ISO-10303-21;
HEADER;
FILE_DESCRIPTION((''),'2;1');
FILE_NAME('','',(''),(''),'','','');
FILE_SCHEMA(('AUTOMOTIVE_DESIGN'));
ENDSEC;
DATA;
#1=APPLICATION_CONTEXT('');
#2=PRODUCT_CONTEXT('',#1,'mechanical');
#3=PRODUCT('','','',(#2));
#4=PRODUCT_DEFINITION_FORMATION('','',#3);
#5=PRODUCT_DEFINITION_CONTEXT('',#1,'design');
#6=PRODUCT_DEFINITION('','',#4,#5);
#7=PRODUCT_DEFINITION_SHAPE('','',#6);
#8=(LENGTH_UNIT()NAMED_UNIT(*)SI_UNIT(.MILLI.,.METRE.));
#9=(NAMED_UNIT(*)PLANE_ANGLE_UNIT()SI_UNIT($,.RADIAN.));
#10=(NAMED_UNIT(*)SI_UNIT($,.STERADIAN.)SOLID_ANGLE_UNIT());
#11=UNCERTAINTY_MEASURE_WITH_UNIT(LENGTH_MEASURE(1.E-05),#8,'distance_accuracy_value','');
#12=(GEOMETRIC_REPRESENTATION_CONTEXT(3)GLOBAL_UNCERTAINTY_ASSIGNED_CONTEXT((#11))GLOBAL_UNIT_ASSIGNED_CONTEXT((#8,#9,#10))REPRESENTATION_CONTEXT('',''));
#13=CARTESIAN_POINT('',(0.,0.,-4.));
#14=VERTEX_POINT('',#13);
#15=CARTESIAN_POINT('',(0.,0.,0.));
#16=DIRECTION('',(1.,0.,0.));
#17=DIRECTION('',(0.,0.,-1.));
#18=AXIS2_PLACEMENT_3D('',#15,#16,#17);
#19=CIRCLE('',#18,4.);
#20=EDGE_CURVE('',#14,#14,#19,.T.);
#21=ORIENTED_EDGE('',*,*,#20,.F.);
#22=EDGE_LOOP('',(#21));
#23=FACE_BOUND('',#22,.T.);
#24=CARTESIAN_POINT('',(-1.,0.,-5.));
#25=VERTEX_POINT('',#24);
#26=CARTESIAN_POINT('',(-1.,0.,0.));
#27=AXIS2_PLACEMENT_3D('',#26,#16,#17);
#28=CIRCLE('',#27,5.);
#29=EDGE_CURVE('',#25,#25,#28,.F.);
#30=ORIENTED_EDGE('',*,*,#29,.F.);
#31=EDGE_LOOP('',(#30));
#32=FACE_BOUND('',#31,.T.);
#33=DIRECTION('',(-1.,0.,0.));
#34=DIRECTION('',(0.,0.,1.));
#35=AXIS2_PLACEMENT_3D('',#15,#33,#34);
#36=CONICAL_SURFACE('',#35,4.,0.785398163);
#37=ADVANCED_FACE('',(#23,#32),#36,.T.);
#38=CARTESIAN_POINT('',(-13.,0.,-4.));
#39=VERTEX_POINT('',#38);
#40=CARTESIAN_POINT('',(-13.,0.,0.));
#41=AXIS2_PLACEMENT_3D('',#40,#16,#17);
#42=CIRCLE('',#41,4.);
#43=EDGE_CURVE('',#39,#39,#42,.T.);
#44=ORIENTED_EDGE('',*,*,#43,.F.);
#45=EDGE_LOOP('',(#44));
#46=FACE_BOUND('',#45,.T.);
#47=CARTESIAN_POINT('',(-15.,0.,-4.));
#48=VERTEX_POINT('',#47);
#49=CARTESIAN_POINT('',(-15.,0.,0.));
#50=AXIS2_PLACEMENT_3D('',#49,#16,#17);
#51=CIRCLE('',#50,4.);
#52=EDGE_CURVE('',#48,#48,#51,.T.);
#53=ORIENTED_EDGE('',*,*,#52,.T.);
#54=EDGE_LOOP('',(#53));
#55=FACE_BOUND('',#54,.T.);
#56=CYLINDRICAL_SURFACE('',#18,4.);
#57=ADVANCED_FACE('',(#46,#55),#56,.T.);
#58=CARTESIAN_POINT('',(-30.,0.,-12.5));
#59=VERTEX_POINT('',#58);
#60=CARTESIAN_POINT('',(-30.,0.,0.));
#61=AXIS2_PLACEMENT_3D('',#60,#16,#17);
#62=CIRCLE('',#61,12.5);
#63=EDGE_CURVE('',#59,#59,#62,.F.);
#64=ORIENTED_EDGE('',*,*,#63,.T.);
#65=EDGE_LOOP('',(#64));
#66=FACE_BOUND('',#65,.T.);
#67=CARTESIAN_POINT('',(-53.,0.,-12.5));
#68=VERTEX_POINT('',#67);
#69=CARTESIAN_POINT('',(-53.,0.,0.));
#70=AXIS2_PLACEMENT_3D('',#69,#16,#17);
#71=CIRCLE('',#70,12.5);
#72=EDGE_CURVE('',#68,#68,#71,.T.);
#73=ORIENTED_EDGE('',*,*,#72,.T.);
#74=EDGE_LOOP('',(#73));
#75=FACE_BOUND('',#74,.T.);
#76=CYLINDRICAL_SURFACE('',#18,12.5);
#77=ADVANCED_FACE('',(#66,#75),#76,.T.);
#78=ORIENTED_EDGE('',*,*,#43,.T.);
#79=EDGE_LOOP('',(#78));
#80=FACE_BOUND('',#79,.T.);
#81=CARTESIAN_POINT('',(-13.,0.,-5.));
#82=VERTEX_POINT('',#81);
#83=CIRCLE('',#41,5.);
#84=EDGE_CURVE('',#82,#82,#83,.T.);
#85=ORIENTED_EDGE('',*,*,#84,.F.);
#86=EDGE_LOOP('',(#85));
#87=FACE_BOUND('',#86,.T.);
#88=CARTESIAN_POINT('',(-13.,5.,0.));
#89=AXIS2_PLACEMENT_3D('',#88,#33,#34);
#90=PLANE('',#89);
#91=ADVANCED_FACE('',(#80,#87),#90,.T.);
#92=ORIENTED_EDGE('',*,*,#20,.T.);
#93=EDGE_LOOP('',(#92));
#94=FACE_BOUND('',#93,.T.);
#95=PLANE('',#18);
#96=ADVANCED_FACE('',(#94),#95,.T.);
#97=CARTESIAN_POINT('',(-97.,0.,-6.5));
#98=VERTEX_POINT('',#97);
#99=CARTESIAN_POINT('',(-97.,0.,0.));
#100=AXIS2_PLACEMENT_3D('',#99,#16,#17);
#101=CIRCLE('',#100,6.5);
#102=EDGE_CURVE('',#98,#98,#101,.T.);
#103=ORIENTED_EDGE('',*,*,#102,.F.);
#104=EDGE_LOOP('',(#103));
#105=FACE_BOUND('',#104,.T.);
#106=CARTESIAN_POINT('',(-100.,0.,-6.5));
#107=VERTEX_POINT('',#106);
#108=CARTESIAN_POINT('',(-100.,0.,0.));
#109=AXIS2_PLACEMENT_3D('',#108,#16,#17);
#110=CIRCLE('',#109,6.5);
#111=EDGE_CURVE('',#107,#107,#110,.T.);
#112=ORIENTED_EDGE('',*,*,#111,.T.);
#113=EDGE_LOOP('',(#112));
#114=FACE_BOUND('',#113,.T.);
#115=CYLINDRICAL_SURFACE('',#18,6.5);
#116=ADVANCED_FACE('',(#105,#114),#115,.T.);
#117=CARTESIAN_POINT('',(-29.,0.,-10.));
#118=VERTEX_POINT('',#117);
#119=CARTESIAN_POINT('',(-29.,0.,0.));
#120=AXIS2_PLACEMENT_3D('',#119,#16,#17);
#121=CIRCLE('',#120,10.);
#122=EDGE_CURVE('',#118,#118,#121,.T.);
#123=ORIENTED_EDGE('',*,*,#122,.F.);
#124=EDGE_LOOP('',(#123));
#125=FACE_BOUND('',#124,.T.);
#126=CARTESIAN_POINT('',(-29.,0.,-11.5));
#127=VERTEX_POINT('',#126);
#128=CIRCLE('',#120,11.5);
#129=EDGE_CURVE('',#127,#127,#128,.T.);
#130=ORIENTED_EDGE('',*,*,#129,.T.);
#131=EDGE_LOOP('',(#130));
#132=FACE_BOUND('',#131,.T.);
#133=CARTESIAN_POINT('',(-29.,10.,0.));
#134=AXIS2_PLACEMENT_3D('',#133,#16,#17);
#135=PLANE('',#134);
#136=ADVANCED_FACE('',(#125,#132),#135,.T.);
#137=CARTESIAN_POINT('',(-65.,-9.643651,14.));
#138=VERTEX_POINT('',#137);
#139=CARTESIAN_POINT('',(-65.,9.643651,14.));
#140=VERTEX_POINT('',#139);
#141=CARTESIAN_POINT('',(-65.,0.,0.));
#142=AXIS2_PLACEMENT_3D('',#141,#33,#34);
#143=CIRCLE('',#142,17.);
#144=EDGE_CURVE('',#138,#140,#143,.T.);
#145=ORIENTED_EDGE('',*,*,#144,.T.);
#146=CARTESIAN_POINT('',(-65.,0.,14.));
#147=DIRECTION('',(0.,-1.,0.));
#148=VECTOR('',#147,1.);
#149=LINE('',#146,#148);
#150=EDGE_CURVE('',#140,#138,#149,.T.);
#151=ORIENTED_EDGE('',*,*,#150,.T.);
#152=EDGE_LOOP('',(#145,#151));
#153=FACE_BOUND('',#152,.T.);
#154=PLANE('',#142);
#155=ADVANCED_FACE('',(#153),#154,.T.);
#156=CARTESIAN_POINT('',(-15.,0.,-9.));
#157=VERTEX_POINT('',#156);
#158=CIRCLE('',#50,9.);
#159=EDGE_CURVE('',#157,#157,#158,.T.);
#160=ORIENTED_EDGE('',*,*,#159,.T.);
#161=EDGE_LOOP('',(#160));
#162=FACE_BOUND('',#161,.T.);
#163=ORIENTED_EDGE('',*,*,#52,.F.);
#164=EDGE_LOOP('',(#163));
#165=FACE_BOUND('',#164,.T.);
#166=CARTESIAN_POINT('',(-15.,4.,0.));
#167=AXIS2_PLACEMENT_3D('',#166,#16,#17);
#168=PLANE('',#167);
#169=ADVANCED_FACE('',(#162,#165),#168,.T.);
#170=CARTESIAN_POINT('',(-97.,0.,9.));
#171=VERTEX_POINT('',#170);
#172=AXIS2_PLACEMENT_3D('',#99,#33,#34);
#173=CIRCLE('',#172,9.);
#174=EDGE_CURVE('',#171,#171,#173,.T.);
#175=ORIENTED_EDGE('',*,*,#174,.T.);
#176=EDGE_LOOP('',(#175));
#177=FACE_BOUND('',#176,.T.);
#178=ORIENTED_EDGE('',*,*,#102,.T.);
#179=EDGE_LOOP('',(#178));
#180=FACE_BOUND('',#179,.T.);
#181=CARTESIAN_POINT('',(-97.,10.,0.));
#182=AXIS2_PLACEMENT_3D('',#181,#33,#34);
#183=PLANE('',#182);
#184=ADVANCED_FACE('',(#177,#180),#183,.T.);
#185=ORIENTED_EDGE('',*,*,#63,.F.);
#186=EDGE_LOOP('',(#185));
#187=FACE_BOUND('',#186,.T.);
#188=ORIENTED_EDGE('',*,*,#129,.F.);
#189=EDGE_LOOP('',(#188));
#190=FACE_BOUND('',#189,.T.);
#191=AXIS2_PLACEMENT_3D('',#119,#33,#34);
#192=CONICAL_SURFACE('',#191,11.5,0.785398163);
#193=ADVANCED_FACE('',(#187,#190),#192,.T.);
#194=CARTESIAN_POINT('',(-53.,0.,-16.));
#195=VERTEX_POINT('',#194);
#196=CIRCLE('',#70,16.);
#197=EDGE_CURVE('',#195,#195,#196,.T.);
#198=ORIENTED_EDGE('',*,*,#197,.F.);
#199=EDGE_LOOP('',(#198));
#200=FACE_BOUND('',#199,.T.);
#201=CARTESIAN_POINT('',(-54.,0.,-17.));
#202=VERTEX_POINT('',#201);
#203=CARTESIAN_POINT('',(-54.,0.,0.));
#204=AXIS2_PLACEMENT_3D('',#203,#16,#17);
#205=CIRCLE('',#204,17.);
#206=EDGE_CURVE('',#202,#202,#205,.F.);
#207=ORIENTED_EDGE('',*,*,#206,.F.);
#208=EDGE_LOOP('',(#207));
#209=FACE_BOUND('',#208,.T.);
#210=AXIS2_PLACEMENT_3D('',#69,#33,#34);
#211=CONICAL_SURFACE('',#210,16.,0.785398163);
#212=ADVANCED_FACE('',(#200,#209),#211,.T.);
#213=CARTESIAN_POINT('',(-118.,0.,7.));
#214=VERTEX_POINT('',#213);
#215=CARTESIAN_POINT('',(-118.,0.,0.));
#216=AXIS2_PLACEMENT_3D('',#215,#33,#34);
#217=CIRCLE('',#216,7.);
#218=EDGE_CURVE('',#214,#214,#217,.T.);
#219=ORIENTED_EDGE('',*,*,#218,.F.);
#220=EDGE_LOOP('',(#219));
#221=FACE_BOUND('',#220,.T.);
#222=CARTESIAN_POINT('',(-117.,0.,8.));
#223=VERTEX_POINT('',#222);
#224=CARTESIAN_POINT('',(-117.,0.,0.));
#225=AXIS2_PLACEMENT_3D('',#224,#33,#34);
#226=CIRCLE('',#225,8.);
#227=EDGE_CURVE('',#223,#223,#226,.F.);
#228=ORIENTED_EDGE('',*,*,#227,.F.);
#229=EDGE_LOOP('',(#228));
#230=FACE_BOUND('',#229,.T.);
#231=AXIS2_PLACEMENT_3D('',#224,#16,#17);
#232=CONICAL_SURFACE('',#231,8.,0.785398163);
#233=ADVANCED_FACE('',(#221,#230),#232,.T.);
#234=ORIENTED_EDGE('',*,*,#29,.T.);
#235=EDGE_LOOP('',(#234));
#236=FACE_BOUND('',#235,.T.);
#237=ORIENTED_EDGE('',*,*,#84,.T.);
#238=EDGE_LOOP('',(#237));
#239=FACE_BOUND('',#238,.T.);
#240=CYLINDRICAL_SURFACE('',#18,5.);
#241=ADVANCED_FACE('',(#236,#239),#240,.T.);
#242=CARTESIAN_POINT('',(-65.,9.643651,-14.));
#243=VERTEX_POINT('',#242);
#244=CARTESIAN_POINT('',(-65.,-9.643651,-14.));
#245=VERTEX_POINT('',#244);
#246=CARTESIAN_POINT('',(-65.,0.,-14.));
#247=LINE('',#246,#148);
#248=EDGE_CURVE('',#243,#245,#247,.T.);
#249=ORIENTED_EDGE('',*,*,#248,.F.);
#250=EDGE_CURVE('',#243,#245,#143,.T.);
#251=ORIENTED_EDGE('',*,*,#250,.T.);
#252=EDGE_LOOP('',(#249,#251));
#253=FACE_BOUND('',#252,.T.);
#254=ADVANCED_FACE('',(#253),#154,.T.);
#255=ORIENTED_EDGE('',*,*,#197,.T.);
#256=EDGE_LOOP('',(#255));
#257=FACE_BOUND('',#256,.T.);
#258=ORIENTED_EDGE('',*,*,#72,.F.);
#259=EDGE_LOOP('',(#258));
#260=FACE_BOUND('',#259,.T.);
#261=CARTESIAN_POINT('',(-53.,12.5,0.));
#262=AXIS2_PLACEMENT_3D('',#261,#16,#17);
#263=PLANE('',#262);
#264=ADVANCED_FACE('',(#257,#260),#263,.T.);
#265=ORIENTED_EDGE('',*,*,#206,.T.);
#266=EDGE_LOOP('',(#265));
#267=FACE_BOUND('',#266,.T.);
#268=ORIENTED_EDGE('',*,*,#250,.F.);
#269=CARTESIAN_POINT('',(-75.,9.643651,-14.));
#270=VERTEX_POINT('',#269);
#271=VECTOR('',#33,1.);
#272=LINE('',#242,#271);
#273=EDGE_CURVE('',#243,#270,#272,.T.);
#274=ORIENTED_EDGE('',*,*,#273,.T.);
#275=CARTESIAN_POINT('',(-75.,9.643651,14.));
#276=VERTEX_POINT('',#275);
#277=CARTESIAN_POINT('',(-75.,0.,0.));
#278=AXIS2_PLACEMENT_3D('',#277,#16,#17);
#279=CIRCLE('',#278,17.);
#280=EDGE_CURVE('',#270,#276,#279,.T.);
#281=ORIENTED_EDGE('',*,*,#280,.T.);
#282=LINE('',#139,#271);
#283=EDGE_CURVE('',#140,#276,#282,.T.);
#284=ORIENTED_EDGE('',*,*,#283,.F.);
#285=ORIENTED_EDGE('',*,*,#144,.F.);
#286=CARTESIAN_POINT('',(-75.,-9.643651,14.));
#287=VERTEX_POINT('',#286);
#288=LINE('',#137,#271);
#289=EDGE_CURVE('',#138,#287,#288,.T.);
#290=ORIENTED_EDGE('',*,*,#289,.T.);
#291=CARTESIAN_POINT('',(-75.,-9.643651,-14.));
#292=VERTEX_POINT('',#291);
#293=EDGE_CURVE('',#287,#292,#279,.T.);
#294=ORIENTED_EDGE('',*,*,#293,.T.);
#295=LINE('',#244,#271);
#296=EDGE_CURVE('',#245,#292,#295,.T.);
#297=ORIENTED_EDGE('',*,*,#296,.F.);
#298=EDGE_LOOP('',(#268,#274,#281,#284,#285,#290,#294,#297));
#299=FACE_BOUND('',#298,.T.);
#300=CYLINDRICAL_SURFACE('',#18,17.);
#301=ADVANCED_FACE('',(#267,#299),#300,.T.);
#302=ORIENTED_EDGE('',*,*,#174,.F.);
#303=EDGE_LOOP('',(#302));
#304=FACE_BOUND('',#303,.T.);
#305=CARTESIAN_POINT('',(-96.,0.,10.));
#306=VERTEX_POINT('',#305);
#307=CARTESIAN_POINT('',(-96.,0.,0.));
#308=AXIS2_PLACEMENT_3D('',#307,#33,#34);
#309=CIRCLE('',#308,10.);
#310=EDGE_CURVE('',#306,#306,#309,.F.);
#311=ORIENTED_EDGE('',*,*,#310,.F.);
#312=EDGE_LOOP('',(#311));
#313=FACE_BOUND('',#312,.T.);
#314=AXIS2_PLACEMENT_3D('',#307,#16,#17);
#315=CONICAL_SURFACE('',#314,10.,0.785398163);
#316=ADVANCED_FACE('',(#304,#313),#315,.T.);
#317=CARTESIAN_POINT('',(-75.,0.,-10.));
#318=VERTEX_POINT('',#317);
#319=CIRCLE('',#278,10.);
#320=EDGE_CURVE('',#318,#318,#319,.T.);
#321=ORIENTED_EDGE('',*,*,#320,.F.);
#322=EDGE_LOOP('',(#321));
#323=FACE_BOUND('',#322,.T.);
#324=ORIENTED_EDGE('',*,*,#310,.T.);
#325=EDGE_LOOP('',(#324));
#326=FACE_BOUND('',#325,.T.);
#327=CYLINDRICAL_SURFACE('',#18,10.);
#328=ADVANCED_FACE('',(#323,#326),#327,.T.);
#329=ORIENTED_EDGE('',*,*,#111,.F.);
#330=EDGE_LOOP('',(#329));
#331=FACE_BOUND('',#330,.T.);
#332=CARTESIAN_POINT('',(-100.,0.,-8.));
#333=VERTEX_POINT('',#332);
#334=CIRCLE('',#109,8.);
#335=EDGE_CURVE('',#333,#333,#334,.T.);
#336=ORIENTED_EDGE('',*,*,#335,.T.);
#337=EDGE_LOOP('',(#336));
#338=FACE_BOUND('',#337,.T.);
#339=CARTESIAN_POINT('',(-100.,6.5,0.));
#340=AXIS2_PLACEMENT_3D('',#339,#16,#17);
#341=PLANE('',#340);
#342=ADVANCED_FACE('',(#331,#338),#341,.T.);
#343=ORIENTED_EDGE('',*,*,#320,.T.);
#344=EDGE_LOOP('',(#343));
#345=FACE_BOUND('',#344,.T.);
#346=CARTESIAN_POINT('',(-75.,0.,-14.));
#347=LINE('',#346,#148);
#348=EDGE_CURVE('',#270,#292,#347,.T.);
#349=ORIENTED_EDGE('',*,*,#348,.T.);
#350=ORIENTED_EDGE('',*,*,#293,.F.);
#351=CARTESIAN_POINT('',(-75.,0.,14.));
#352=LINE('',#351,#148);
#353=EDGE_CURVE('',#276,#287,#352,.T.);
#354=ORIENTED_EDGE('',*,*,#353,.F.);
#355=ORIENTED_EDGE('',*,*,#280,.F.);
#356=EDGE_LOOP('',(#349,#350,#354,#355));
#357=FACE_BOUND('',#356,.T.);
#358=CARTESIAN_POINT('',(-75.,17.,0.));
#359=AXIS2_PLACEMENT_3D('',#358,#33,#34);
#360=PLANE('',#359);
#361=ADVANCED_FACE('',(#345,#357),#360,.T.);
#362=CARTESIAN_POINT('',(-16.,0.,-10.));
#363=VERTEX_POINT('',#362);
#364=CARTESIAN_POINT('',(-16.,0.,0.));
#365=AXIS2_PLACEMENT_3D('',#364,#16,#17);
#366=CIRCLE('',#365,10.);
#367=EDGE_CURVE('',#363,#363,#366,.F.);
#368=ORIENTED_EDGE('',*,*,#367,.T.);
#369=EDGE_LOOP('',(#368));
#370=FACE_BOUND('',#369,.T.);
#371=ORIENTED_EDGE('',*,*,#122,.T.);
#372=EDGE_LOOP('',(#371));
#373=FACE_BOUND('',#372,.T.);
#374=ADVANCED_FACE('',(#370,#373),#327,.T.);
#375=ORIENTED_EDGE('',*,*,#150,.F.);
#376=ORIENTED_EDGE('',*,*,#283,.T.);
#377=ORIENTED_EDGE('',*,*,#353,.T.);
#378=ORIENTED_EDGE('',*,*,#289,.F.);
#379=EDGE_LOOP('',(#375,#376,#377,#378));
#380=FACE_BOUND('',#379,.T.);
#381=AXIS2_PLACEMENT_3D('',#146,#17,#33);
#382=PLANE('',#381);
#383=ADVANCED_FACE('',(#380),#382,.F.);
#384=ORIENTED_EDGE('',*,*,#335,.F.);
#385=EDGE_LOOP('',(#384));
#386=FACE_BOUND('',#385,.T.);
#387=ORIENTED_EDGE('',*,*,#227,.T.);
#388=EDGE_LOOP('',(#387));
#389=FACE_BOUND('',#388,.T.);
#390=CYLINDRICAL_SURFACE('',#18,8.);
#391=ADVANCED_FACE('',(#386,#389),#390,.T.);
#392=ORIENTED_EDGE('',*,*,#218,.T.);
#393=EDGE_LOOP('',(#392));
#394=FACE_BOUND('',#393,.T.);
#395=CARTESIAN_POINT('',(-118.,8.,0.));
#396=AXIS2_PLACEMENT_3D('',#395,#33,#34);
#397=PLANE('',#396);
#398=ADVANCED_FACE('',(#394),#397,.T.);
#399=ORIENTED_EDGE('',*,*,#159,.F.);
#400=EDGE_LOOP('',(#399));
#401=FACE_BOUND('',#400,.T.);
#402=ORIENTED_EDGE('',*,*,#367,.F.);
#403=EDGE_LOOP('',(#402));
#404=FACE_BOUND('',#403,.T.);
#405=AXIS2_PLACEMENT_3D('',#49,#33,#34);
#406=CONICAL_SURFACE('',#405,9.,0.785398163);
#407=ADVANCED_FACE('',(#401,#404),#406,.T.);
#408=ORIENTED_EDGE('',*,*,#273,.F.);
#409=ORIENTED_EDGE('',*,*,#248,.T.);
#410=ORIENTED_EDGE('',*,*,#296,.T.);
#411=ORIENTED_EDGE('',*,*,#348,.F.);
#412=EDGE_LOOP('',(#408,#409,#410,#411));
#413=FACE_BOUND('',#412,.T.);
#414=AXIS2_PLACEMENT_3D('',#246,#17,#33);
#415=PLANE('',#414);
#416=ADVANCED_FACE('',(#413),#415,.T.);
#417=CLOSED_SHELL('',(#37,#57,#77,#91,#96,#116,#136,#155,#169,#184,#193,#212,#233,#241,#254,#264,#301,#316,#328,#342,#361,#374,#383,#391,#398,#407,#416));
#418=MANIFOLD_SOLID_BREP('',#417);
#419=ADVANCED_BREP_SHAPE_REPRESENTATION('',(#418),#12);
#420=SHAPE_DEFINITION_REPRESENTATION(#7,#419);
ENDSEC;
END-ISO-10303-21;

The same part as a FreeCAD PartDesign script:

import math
import FreeCAD as App
import Part
import Sketcher

V = App.Vector
Q = App.Units.Quantity


def edges_at(feature, points):
    """Names of the edges that pass closest to the given points."""
    edges = feature.Shape.Edges
    near = lambda p: min(range(len(edges)), key=lambda i: edges[i].distToShape(Part.Vertex(*p))[0])
    return sorted({f"Edge{near(p) + 1}" for p in points})

doc = App.newDocument("Part")
body = doc.addObject("PartDesign::Body", "Body")

# Sketch on XY plane
sketch1 = body.newObject("Sketcher::SketchObject", "Sketch")
sketch1.AttachmentSupport = (doc.getObject("XY_Plane"), [""])
sketch1.MapMode = "FlatFace"
sketch1.addGeometry([
    Part.LineSegment(V(0, 0, 0), V(0, 5, 0)),  # 0
    Part.LineSegment(V(0, 5, 0), V(-13, 5, 0)),  # 1
    Part.LineSegment(V(-13, 5, 0), V(-13, 4, 0)),  # 2
    Part.LineSegment(V(-13, 4, 0), V(-15, 4, 0)),  # 3
    Part.LineSegment(V(-15, 4, 0), V(-15, 10, 0)),  # 4
    Part.LineSegment(V(-15, 10, 0), V(-29, 10, 0)),  # 5
    Part.LineSegment(V(-29, 10, 0), V(-29, 12.5, 0)),  # 6
    Part.LineSegment(V(-29, 12.5, 0), V(-53, 12.5, 0)),  # 7
    Part.LineSegment(V(-53, 12.5, 0), V(-53, 17, 0)),  # 8
    Part.LineSegment(V(-53, 17, 0), V(-75, 17, 0)),  # 9
    Part.LineSegment(V(-75, 17, 0), V(-75, 10, 0)),  # 10
    Part.LineSegment(V(-75, 10, 0), V(-97, 10, 0)),  # 11
    Part.LineSegment(V(-97, 10, 0), V(-97, 6.5, 0)),  # 12
    Part.LineSegment(V(-97, 6.5, 0), V(-100, 6.5, 0)),  # 13
    Part.LineSegment(V(-100, 6.5, 0), V(-100, 8, 0)),  # 14
    Part.LineSegment(V(-100, 8, 0), V(-118, 8, 0)),  # 15
    Part.LineSegment(V(-118, 8, 0), V(-118, 0, 0)),  # 16
    Part.LineSegment(V(-118, 0, 0), V(0, 0, 0)),  # 17
], False)
sketch1.addConstraint([
    Sketcher.Constraint("Coincident", 0, 2, 1, 1),
    Sketcher.Constraint("Coincident", 1, 2, 2, 1),
    Sketcher.Constraint("Coincident", 2, 2, 3, 1),
    Sketcher.Constraint("Coincident", 3, 2, 4, 1),
    Sketcher.Constraint("Coincident", 4, 2, 5, 1),
    Sketcher.Constraint("Coincident", 5, 2, 6, 1),
    Sketcher.Constraint("Coincident", 6, 2, 7, 1),
    Sketcher.Constraint("Coincident", 7, 2, 8, 1),
    Sketcher.Constraint("Coincident", 8, 2, 9, 1),
    Sketcher.Constraint("Coincident", 9, 2, 10, 1),
    Sketcher.Constraint("Coincident", 10, 2, 11, 1),
    Sketcher.Constraint("Coincident", 11, 2, 12, 1),
    Sketcher.Constraint("Coincident", 12, 2, 13, 1),
    Sketcher.Constraint("Coincident", 13, 2, 14, 1),
    Sketcher.Constraint("Coincident", 14, 2, 15, 1),
    Sketcher.Constraint("Coincident", 15, 2, 16, 1),
    Sketcher.Constraint("Coincident", 16, 2, 17, 1),
    Sketcher.Constraint("Coincident", 17, 2, 0, 1),
    Sketcher.Constraint("Vertical", 0),
    Sketcher.Constraint("Horizontal", 1),
    Sketcher.Constraint("Vertical", 2),
    Sketcher.Constraint("Horizontal", 3),
    Sketcher.Constraint("Vertical", 4),
    Sketcher.Constraint("Horizontal", 5),
    Sketcher.Constraint("Vertical", 6),
    Sketcher.Constraint("Horizontal", 7),
    Sketcher.Constraint("Vertical", 8),
    Sketcher.Constraint("Horizontal", 9),
    Sketcher.Constraint("Vertical", 10),
    Sketcher.Constraint("Horizontal", 11),
    Sketcher.Constraint("Vertical", 12),
    Sketcher.Constraint("Horizontal", 13),
    Sketcher.Constraint("Vertical", 14),
    Sketcher.Constraint("Horizontal", 15),
    Sketcher.Constraint("Vertical", 16),
    Sketcher.Constraint("Horizontal", 17),
    Sketcher.Constraint("Coincident", 17, 2, -1, 1),
    Sketcher.Constraint("Horizontal", 5, 2, 10, 2),
    Sketcher.Constraint("Equal", 9, 11),
    Sketcher.Constraint("DistanceX", 1, 2, 1, 1, Q("13 mm")),
    Sketcher.Constraint("DistanceX", 3, 2, 3, 1, Q("2 mm")),
    Sketcher.Constraint("DistanceX", 5, 2, 5, 1, Q("14 mm")),
    Sketcher.Constraint("DistanceX", 7, 2, 7, 1, Q("24 mm")),
    Sketcher.Constraint("DistanceX", 9, 2, 9, 1, Q("22 mm")),
    Sketcher.Constraint("DistanceX", 13, 2, 13, 1, Q("3 mm")),
    Sketcher.Constraint("DistanceX", 15, 2, 15, 1, Q("18 mm")),
    Sketcher.Constraint("DistanceY", 0, 1, 0, 2, Q("5 mm")),
    Sketcher.Constraint("DistanceY", 2, 2, 2, 1, Q("1 mm")),
    Sketcher.Constraint("DistanceY", 4, 1, 4, 2, Q("6 mm")),
    Sketcher.Constraint("DistanceY", 10, 2, 10, 1, Q("7 mm")),
    Sketcher.Constraint("DistanceY", 16, 2, 16, 1, Q("8 mm")),
    Sketcher.Constraint("DistanceY", 6, 1, 6, 2, Q("2.5 mm")),
    Sketcher.Constraint("DistanceY", 12, 2, 12, 1, Q("3.5 mm")),
])
revolution = body.newObject("PartDesign::Revolution", "Revolution")
revolution.Profile = sketch1
revolution.ReferenceAxis = (sketch1, ["H_Axis"])
revolution.Angle = 360
doc.recompute()

chamfer = body.newObject("PartDesign::Chamfer", "Chamfer")
chamfer.Base = (revolution, edges_at(revolution, [
    (-118, 0, 8),
    (-97, 0, 10),
    (-53, 0, 17),
    (-29, 0, 12.5),
    (-15, 0, 10),
    (0, 0, 5),
]))
chamfer.Size = 1

# Sketch on YZ plane
sketch2 = body.newObject("Sketcher::SketchObject", "Sketch001")
sketch2.AttachmentSupport = (doc.getObject("YZ_Plane"), [""])
sketch2.MapMode = "FlatFace"
sketch2.AttachmentOffset = App.Placement(V(0, 0, -75), App.Rotation())
sketch2.addGeometry([
    Part.LineSegment(V(-10, -14, 0), V(10, -14, 0)),  # 0
    Part.ArcOfCircle(Part.Circle(V(0, 0, 0), V(0, 0, 1), 17), math.radians(-125), math.radians(-55)),  # 1
    Part.ArcOfCircle(Part.Circle(V(0, 0, 0), V(0, 0, 1), 17), math.radians(55), math.radians(90)),  # 2
    Part.LineSegment(V(10, 14, 0), V(-10, 14, 0)),  # 3
    Part.ArcOfCircle(Part.Circle(V(0, 0, 0), V(0, 0, 1), 17), math.radians(90), math.radians(125)),  # 4
], False)
sketch2.addConstraint([
    Sketcher.Constraint("Coincident", 0, 1, 1, 1),
    Sketcher.Constraint("Coincident", 1, 2, 0, 2),
    Sketcher.Constraint("Coincident", 2, 1, 3, 1),
    Sketcher.Constraint("Coincident", 3, 2, 4, 2),
    Sketcher.Constraint("Tangent", 4, 1, 2, 2),
    Sketcher.Constraint("Horizontal", 0),
    Sketcher.Constraint("Horizontal", 3),
    Sketcher.Constraint("Coincident", 1, 3, -1, 1),
    Sketcher.Constraint("Coincident", 2, 3, -1, 1),
    Sketcher.Constraint("Equal", 1, 2),
    Sketcher.Constraint("Equal", 2, 4),
    Sketcher.Constraint("PointOnObject", 4, 1, -2),
    Sketcher.Constraint("Vertical", 1, 2, 2, 1),
    Sketcher.Constraint("Radius", 1, Q("17 mm")),
    Sketcher.Constraint("DistanceY", 0, 1, -1, 1, Q("14 mm")),
])
pocket1 = body.newObject("PartDesign::Pocket", "Pocket")
pocket1.Profile = sketch2
pocket1.Length = 10
pocket1.Reversed = True

doc.recompute()
